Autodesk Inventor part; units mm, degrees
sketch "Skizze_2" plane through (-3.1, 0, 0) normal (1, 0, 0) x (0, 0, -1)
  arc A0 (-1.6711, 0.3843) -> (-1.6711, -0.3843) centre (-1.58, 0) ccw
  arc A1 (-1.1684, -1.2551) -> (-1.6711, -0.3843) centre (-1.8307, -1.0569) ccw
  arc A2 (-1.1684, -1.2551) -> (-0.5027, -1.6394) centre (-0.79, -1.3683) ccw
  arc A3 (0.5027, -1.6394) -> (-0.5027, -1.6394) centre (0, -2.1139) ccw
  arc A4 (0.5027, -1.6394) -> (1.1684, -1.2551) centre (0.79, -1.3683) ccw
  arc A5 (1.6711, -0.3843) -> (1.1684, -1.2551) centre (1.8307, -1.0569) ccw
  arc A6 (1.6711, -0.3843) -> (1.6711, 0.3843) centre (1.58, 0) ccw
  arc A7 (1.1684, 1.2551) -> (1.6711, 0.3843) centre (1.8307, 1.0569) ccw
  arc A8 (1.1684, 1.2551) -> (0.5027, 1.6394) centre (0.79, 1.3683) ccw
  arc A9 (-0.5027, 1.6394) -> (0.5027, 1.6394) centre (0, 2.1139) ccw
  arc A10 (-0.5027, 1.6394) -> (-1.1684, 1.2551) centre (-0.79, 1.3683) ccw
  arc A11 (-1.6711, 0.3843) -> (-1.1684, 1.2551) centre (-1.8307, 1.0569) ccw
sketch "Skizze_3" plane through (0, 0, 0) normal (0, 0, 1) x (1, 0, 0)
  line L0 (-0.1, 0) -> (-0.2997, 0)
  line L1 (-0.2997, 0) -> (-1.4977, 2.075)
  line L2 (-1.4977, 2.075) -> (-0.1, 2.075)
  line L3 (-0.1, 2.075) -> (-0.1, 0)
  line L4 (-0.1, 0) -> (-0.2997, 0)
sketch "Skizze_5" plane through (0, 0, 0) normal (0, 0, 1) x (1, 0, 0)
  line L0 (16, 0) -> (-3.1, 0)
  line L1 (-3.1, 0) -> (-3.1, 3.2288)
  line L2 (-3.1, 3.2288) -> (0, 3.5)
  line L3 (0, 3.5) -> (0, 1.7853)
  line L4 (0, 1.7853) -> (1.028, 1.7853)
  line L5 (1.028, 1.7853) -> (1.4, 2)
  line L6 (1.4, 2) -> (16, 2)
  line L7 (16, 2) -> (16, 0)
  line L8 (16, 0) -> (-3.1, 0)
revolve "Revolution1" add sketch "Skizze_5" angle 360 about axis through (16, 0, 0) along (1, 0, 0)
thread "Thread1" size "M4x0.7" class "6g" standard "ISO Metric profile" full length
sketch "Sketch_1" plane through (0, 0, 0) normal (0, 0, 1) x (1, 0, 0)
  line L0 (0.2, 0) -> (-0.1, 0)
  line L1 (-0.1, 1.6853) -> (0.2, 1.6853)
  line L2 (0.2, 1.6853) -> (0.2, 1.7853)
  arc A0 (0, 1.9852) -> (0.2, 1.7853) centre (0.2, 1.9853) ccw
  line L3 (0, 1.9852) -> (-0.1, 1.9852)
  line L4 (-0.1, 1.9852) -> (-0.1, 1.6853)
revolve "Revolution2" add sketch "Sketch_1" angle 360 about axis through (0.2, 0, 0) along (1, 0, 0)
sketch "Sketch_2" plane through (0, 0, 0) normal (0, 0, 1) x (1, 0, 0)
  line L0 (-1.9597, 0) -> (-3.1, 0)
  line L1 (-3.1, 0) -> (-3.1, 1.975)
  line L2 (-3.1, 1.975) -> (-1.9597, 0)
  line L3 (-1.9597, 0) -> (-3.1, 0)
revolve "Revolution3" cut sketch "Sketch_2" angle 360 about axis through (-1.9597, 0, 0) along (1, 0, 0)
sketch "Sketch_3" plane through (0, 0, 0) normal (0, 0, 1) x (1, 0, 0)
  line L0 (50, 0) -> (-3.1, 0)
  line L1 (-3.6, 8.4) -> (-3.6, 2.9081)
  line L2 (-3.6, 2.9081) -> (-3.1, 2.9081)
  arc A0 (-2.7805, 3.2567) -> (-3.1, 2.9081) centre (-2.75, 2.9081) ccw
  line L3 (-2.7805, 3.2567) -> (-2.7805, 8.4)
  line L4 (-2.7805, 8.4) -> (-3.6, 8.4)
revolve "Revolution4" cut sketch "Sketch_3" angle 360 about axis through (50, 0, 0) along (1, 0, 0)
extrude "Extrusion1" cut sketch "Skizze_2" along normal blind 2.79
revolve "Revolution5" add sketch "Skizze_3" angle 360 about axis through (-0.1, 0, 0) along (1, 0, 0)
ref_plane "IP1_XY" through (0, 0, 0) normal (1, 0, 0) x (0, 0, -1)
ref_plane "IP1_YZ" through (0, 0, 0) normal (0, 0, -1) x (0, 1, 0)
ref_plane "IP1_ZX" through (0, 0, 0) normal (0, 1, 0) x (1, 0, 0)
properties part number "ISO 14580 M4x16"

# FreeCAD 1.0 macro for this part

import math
import FreeCAD as App
import Part
import Sketcher
Q = App.Units.Quantity


def add_polygon(sketch, points):
    """Adds a closed chain of lines whose ends are joined by coincident constraints."""
    first, n = sketch.GeometryCount, len(points)
    for a, b in zip(points, points[1:] + points[:1]):
        sketch.addGeometry(Part.LineSegment(App.Vector(*a, 0), App.Vector(*b, 0)), False)
    for i in range(n):
        sketch.addConstraint(Sketcher.Constraint("Coincident", first + i, 2, first + (i + 1) % n, 1))

doc = App.newDocument("Part")
body = doc.addObject("PartDesign::Body", "Body")

# Sketch on XY plane
sketch1 = body.newObject("Sketcher::SketchObject", "Sketch")
sketch1.AttachmentSupport = (doc.getObject("XY_Plane"), [""])
sketch1.MapMode = "FlatFace"
add_polygon(sketch1, [(-3.1, 0), (16, 0), (16, 2), (1.4, 2), (1.028, 1.7853), (0, 1.7853), (0, 3.5), (-3.1, 3.2288)])  # lines 0-7
sketch1.addConstraint([
    Sketcher.Constraint("Horizontal", 0),
    Sketcher.Constraint("Vertical", 1),
    Sketcher.Constraint("Horizontal", 2),
    Sketcher.Constraint("Horizontal", 4),
    Sketcher.Constraint("Vertical", 5),
    Sketcher.Constraint("Vertical", 7),
    Sketcher.Constraint("PointOnObject", 0, 2, -1),
    Sketcher.Constraint("PointOnObject", 4, 2, -2),
    Sketcher.Constraint("DistanceY", 1, 1, 1, 2, 2.0),
    Sketcher.Constraint("Angle", 6, Q("-175.0003 deg")),
    Sketcher.Constraint("DistanceX", 0, 1, 0, 2, 19.1),
    Sketcher.Constraint("DistanceX", 2, 2, 2, 1, 14.6),
    Sketcher.Constraint("DistanceX", -1, 1, 0, 2, 16.0),
    Sketcher.Constraint("DistanceY", -1, 1, 5, 2, 3.5),
    Sketcher.Constraint("DistanceX", 4, 2, 4, 1, 1.028),
    Sketcher.Constraint("DistanceY", 5, 1, 5, 2, 1.7147),
])
revolution = body.newObject("PartDesign::Revolution", "Revolution")
revolution.Profile = sketch1
revolution.ReferenceAxis = (sketch1, ["H_Axis"])
revolution.Angle = 360

# Sketch on XY plane
sketch2 = body.newObject("Sketcher::SketchObject", "Sketch001")
sketch2.AttachmentSupport = (doc.getObject("XY_Plane"), [""])
sketch2.MapMode = "FlatFace"
sketch2.addGeometry([
    Part.LineSegment(App.Vector(-0.1, 1.9852, 0), App.Vector(-0.1, 1.6853, 0)),  # 0
    Part.LineSegment(App.Vector(-0.1, 1.6853, 0), App.Vector(0.2, 1.6853, 0)),  # 1
    Part.LineSegment(App.Vector(0.2, 1.6853, 0), App.Vector(0.2, 1.7853, 0)),  # 2
    Part.ArcOfCircle(Part.Circle(App.Vector(0.2, 1.9853, 0), App.Vector(0, 0, 1), 0.2), math.radians(-179.971352), math.radians(-90)),  # 3
    Part.LineSegment(App.Vector(0, 1.9852, 0), App.Vector(-0.1, 1.9852, 0)),  # 4
], False)
sketch2.addConstraint([
    Sketcher.Constraint("Coincident", 0, 2, 1, 1),
    Sketcher.Constraint("Coincident", 1, 2, 2, 1),
    Sketcher.Constraint("Coincident", 2, 2, 3, 2),
    Sketcher.Constraint("Coincident", 3, 1, 4, 1),
    Sketcher.Constraint("Coincident", 4, 2, 0, 1),
    Sketcher.Constraint("Vertical", 0),
    Sketcher.Constraint("Horizontal", 1),
    Sketcher.Constraint("Vertical", 2),
    Sketcher.Constraint("Horizontal", 4),
    Sketcher.Constraint("PointOnObject", 3, 1, -2),
    Sketcher.Constraint("Vertical", 3, 3, 1, 2),
    Sketcher.Constraint("Equal", 1, 0),
    Sketcher.Constraint("Equal", 4, 2),
    Sketcher.Constraint("Radius", 3, 0.2),
    Sketcher.Constraint("DistanceX", 1, 1, 1, 2, 0.3),
    Sketcher.Constraint("DistanceY", -1, 1, 3, 3, 1.9853),
])
revolution2 = body.newObject("PartDesign::Revolution", "Revolution001")
revolution2.Profile = sketch2
revolution2.ReferenceAxis = (sketch2, ["H_Axis"])
revolution2.Angle = 360

# Sketch on XY plane
sketch3 = body.newObject("Sketcher::SketchObject", "Sketch002")
sketch3.AttachmentSupport = (doc.getObject("XY_Plane"), [""])
sketch3.MapMode = "FlatFace"
add_polygon(sketch3, [(-3.1, 0), (-1.9597, 0), (-3.1, 1.975)])  # lines 0-2
sketch3.addConstraint([
    Sketcher.Constraint("Horizontal", 0),
    Sketcher.Constraint("Vertical", 2),
    Sketcher.Constraint("PointOnObject", 0, 2, -1),
    Sketcher.Constraint("Angle", 1, Q("120.0007 deg")),
    Sketcher.Constraint("DistanceX", 1, 2, -1, 1, 3.1),
    Sketcher.Constraint("DistanceY", 2, 2, 2, 1, 1.975),
])
groove = body.newObject("PartDesign::Groove", "Groove")
groove.Profile = sketch3
groove.ReferenceAxis = (sketch3, ["H_Axis"])
groove.Angle = 360

# Sketch on XY plane
sketch4 = body.newObject("Sketcher::SketchObject", "Sketch003")
sketch4.AttachmentSupport = (doc.getObject("XY_Plane"), [""])
sketch4.MapMode = "FlatFace"
sketch4.addGeometry([
    Part.LineSegment(App.Vector(-2.7805, 8.4, 0), App.Vector(-3.6, 8.4, 0)),  # 0
    Part.LineSegment(App.Vector(-3.6, 8.4, 0), App.Vector(-3.6, 2.9081, 0)),  # 1
    Part.LineSegment(App.Vector(-3.6, 2.9081, 0), App.Vector(-3.1, 2.9081, 0)),  # 2
    Part.ArcOfCircle(Part.Circle(App.Vector(-2.75, 2.9081, 0), App.Vector(0, 0, 1), 0.349932), math.radians(95.000237), math.radians(180)),  # 3
    Part.LineSegment(App.Vector(-2.7805, 3.2567, 0), App.Vector(-2.7805, 8.4, 0)),  # 4
], False)
sketch4.addConstraint([
    Sketcher.Constraint("Coincident", 0, 2, 1, 1),
    Sketcher.Constraint("Coincident", 1, 2, 2, 1),
    Sketcher.Constraint("Coincident", 2, 2, 3, 2),
    Sketcher.Constraint("Coincident", 3, 1, 4, 1),
    Sketcher.Constraint("Coincident", 4, 2, 0, 1),
    Sketcher.Constraint("Horizontal", 0),
    Sketcher.Constraint("Vertical", 1),
    Sketcher.Constraint("Horizontal", 2),
    Sketcher.Constraint("Vertical", 4),
    Sketcher.Constraint("Horizontal", 3, 3, 1, 2),
    Sketcher.Constraint("Radius", 3, 0.35),
    Sketcher.Constraint("DistanceX", 2, 1, 2, 2, 0.5),
    Sketcher.Constraint("DistanceX", 0, 2, -1, 1, 3.6),
    Sketcher.Constraint("DistanceY", -1, 1, 0, 2, 8.4),
    Sketcher.Constraint("DistanceY", 1, 2, 1, 1, 5.492),
    Sketcher.Constraint("DistanceX", 0, 2, 0, 1, 0.8195),
])
groove2 = body.newObject("PartDesign::Groove", "Groove001")
groove2.Profile = sketch4
groove2.ReferenceAxis = (sketch4, ["H_Axis"])
groove2.Angle = 360

# Sketch on YZ plane
sketch5 = body.newObject("Sketcher::SketchObject", "Sketch004")
sketch5.AttachmentSupport = (doc.getObject("YZ_Plane"), [""])
sketch5.MapMode = "FlatFace"
sketch5.AttachmentOffset = App.Placement(App.Vector(0, 0, -3.1), App.Rotation())
sketch5.addGeometry([
    Part.ArcOfCircle(Part.Circle(App.Vector(1.0569, 1.8307, 0), App.Vector(0, 0, 1), 0.691276), math.radians(-166.651273), math.radians(-73.339654)),  # 0
    Part.ArcOfCircle(Part.Circle(App.Vector(0, 1.58, 0), App.Vector(0, 0, 1), 0.39495), math.radians(13.336047), math.radians(166.663953)),  # 1
    Part.ArcOfCircle(Part.Circle(App.Vector(-1.0569, 1.8307, 0), App.Vector(0, 0, 1), 0.691321), math.radians(-106.660346), math.radians(-13.348727)),  # 2
    Part.ArcOfCircle(Part.Circle(App.Vector(-1.3683, 0.79, 0), App.Vector(0, 0, 1), 0.394969), math.radians(73.345218), math.radians(226.661768)),  # 3
    Part.ArcOfCircle(Part.Circle(App.Vector(-2.1139, 0, 0), App.Vector(0, 0, 1), 0.691272), math.radians(-46.652981), math.radians(46.652981)),  # 4
    Part.ArcOfCircle(Part.Circle(App.Vector(-1.3683, -0.79, 0), App.Vector(0, 0, 1), 0.395015), math.radians(133.338232), math.radians(286.654782)),  # 5
    Part.ArcOfCircle(Part.Circle(App.Vector(-1.0569, -1.8307, 0), App.Vector(0, 0, 1), 0.691276), math.radians(13.348727), math.radians(106.660346)),  # 6
    Part.ArcOfCircle(Part.Circle(App.Vector(0, -1.58, 0), App.Vector(0, 0, 1), 0.39495), math.radians(-166.663953), math.radians(-13.336047)),  # 7
    Part.ArcOfCircle(Part.Circle(App.Vector(1.0569, -1.8307, 0), App.Vector(0, 0, 1), 0.691321), math.radians(73.339654), math.radians(166.651273)),  # 8
    Part.ArcOfCircle(Part.Circle(App.Vector(1.3683, -0.79, 0), App.Vector(0, 0, 1), 0.394969), math.radians(-106.654782), math.radians(46.661768)),  # 9
    Part.ArcOfCircle(Part.Circle(App.Vector(2.1139, 0, 0), App.Vector(0, 0, 1), 0.691272), math.radians(133.347019), math.radians(226.652981)),  # 10
    Part.ArcOfCircle(Part.Circle(App.Vector(1.3683, 0.79, 0), App.Vector(0, 0, 1), 0.395015), math.radians(-46.661768), math.radians(106.654782)),  # 11
], False)
sketch5.addConstraint([
    Sketcher.Constraint("Tangent", 0, 1, 1, 1),
    Sketcher.Constraint("Tangent", 1, 2, 2, 2),
    Sketcher.Constraint("Tangent", 2, 1, 3, 1),
    Sketcher.Constraint("Tangent", 3, 2, 4, 2),
    Sketcher.Constraint("Tangent", 4, 1, 5, 1),
    Sketcher.Constraint("Tangent", 5, 2, 6, 2),
    Sketcher.Constraint("Tangent", 6, 1, 7, 1),
    Sketcher.Constraint("Tangent", 7, 2, 8, 2),
    Sketcher.Constraint("Tangent", 8, 1, 9, 1),
    Sketcher.Constraint("Tangent", 9, 2, 10, 2),
    Sketcher.Constraint("Tangent", 10, 1, 11, 1),
    Sketcher.Constraint("Tangent", 11, 2, 0, 2),
    Sketcher.Constraint("Equal", 0, 2),
    Sketcher.Constraint("Equal", 1, 3),
    Sketcher.Constraint("Equal", 2, 4),
    Sketcher.Constraint("Equal", 3, 5),
    Sketcher.Constraint("Equal", 4, 6),
    Sketcher.Constraint("Equal", 5, 7),
    Sketcher.Constraint("Equal", 6, 8),
    Sketcher.Constraint("Equal", 7, 9),
    Sketcher.Constraint("Equal", 8, 10),
    Sketcher.Constraint("Equal", 9, 11),
    Sketcher.Constraint("Symmetric", 0, 3, 6, 3, -1, 1),
    Sketcher.Constraint("Symmetric", 2, 3, 8, 3, -1, 1),
    Sketcher.Constraint("Symmetric", 4, 3, 10, 3, -1, 1),
    Sketcher.Constraint("Symmetric", 0, 3, 2, 3, -2),
    Sketcher.Constraint("PointOnObject", 4, 3, -1),
    Sketcher.Constraint("Radius", 1, 0.395),
    Sketcher.Constraint("Radius", 0, 0.6913),
    Sketcher.Constraint("DistanceY", -1, 1, 1, 3, 1.58),
    Sketcher.Constraint("DistanceY", -1, 1, 3, 3, 0.79),
    Sketcher.Constraint("DistanceX", -1, 1, 0, 3, 1.057),
])
pocket1 = body.newObject("PartDesign::Pocket", "Pocket")
pocket1.Profile = sketch5
pocket1.Length = 2.79
pocket1.Reversed = True

# Sketch on XY plane
sketch6 = body.newObject("Sketcher::SketchObject", "Sketch005")
sketch6.AttachmentSupport = (doc.getObject("XY_Plane"), [""])
sketch6.MapMode = "FlatFace"
add_polygon(sketch6, [(-0.2997, 0), (-0.1, 0), (-0.1, 2.075), (-1.4977, 2.075)])  # lines 0-3
sketch6.addConstraint([
    Sketcher.Constraint("Horizontal", 0),
    Sketcher.Constraint("Vertical", 1),
    Sketcher.Constraint("Horizontal", 2),
    Sketcher.Constraint("PointOnObject", 0, 2, -1),
    Sketcher.Constraint("Angle", 3, Q("-60 deg")),
    Sketcher.Constraint("DistanceX", 0, 2, -1, 1, 0.1),
    Sketcher.Constraint("DistanceY", 1, 1, 1, 2, 2.075),
    Sketcher.Constraint("DistanceX", 0, 1, 0, 2, 0.1997),
])
revolution3 = body.newObject("PartDesign::Revolution", "Revolution002")
revolution3.Profile = sketch6
revolution3.ReferenceAxis = (sketch6, ["H_Axis"])
revolution3.Angle = 360

doc.recompute()
